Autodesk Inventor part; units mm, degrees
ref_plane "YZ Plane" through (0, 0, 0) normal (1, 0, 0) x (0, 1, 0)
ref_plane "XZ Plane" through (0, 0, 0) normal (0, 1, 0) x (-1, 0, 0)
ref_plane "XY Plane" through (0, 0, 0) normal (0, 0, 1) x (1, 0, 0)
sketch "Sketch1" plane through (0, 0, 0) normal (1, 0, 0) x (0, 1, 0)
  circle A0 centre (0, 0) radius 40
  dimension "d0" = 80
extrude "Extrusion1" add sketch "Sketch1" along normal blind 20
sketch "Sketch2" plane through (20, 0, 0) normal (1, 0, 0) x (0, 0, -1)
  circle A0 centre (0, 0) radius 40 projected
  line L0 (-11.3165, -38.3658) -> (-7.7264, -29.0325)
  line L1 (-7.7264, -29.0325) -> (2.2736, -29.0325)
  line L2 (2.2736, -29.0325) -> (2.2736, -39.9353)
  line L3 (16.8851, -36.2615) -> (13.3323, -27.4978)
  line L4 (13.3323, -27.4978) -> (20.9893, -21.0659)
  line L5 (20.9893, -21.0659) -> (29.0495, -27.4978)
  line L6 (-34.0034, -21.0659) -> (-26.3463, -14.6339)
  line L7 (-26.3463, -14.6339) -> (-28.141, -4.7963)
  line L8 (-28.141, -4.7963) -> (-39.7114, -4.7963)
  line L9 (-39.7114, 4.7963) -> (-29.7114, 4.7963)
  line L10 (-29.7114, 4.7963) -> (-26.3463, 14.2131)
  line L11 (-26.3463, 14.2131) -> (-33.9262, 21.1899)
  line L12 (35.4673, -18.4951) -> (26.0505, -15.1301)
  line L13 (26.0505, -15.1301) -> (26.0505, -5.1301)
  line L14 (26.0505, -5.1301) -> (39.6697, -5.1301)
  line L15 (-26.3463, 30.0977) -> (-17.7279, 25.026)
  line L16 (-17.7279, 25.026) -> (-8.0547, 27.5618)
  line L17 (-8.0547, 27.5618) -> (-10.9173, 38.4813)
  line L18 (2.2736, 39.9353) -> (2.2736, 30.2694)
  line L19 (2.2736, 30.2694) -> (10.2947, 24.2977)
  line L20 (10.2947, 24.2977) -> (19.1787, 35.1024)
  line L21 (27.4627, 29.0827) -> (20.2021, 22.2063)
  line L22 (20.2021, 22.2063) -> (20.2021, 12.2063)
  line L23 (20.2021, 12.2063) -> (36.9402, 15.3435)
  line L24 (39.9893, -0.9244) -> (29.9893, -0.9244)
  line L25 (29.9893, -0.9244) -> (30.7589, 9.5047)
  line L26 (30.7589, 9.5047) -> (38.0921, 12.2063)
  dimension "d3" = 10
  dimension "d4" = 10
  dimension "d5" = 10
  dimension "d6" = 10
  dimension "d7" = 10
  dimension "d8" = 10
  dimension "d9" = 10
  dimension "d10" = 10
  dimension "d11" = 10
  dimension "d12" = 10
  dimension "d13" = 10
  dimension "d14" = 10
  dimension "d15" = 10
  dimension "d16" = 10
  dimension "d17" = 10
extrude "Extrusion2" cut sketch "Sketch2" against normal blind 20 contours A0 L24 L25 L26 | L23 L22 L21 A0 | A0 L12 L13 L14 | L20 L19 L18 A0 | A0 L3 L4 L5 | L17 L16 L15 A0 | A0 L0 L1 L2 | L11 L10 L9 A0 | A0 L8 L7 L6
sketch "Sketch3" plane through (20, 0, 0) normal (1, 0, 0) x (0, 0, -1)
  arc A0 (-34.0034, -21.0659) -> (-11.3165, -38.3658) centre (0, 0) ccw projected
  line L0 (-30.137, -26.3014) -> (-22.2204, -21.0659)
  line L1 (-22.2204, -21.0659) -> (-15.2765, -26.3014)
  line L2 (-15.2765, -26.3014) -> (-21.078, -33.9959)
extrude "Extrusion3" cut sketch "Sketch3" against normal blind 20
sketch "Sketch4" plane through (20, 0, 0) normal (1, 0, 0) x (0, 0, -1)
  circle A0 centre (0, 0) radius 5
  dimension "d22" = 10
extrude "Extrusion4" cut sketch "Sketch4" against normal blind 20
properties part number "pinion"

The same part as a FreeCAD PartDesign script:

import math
import FreeCAD as App
import Part
import Sketcher

doc = App.newDocument("Part")
body = doc.addObject("PartDesign::Body", "Body")

# Sketch on YZ plane
sketch1 = doc.addObject("Sketcher::SketchObject", "Sketch")
body.addObject(sketch1)
sketch1.AttachmentSupport = (doc.YZ_Plane, [""])
sketch1.MapMode = "FlatFace"
sketch1.addGeometry(Part.Circle(App.Vector(0, 0, 0), App.Vector(0, 0, 1), 40), False)
sketch1.addConstraint(Sketcher.Constraint("Coincident", 0, 3, -1, 1))
sketch1.addConstraint(Sketcher.Constraint("Diameter", 0, 80.0))
pad1 = doc.addObject("PartDesign::Pad", "Pad")
body.addObject(pad1)
pad1.Profile = sketch1
pad1.Length = 20

# Sketch on YZ plane
sketch2 = doc.addObject("Sketcher::SketchObject", "Sketch001")
body.addObject(sketch2)
sketch2.AttachmentSupport = (doc.YZ_Plane, [""])
sketch2.MapMode = "FlatFace"
sketch2.AttachmentOffset = App.Placement(App.Vector(0, 0, 20), App.Rotation())
sketch2.addGeometry(Part.ArcOfCircle(Part.Circle(App.Vector(0, 0, 0), App.Vector(0, 0, 1), 40), math.radians(-91.324224), math.radians(-72.232371)), False)
sketch2.addGeometry(Part.LineSegment(App.Vector(12.2063, -38.0921, 0), App.Vector(9.5047, -30.7589, 0)), False)
sketch2.addGeometry(Part.LineSegment(App.Vector(9.5047, -30.7589, 0), App.Vector(-0.9244, -29.9893, 0)), False)
sketch2.addGeometry(Part.LineSegment(App.Vector(-0.9244, -29.9893, 0), App.Vector(-0.9244, -39.9893, 0)), False)
sketch2.addGeometry(Part.LineSegment(App.Vector(12.2063, -20.2021, 0), App.Vector(15.3435, -36.9402, 0)), False)
sketch2.addGeometry(Part.ArcOfCircle(Part.Circle(App.Vector(0, 0, 0), App.Vector(0, 0, 1), 40), math.radians(-67.443932), math.radians(-43.358951)), False)
sketch2.addGeometry(Part.LineSegment(App.Vector(29.0827, -27.4627, 0), App.Vector(22.2063, -20.2021, 0)), False)
sketch2.addGeometry(Part.LineSegment(App.Vector(22.2063, -20.2021, 0), App.Vector(12.2063, -20.2021, 0)), False)
sketch2.addGeometry(Part.ArcOfCircle(Part.Circle(App.Vector(0, 0, 0), App.Vector(0, 0, 1), 40), math.radians(-117.540648), math.radians(-97.368616)), False)
sketch2.addGeometry(Part.LineSegment(App.Vector(-5.1301, -39.6697, 0), App.Vector(-5.1301, -26.0505, 0)), False)
sketch2.addGeometry(Part.LineSegment(App.Vector(-5.1301, -26.0505, 0), App.Vector(-15.1301, -26.0505, 0)), False)
sketch2.addGeometry(Part.LineSegment(App.Vector(-15.1301, -26.0505, 0), App.Vector(-18.4951, -35.4673, 0)), False)
sketch2.addGeometry(Part.LineSegment(App.Vector(24.2977, -10.2947, 0), App.Vector(35.1024, -19.1787, 0)), False)
sketch2.addGeometry(Part.ArcOfCircle(Part.Circle(App.Vector(0, 0, 0), App.Vector(0, 0, 1), 40), math.radians(-28.650619), math.radians(-3.258451)), False)
sketch2.addGeometry(Part.LineSegment(App.Vector(39.9353, -2.2736, 0), App.Vector(30.2694, -2.2736, 0)), False)
sketch2.addGeometry(Part.LineSegment(App.Vector(30.2694, -2.2736, 0), App.Vector(24.2977, -10.2947, 0)), False)
sketch2.addGeometry(Part.ArcOfCircle(Part.Circle(App.Vector(0, 0, 0), App.Vector(0, 0, 1), 40), math.radians(-155.031046), math.radians(-133.428156)), False)
sketch2.addGeometry(Part.LineSegment(App.Vector(-27.4978, -29.0495, 0), App.Vector(-21.0659, -20.9893, 0)), False)
sketch2.addGeometry(Part.LineSegment(App.Vector(-21.0659, -20.9893, 0), App.Vector(-27.4978, -13.3323, 0)), False)
sketch2.addGeometry(Part.LineSegment(App.Vector(-27.4978, -13.3323, 0), App.Vector(-36.2615, -16.8851, 0)), False)
sketch2.addGeometry(Part.LineSegment(App.Vector(27.5618, 8.0547, 0), App.Vector(38.4813, 10.9173, 0)), False)
sketch2.addGeometry(Part.ArcOfCircle(Part.Circle(App.Vector(0, 0, 0), App.Vector(0, 0, 1), 40), math.radians(15.838853), math.radians(41.197581)), False)
sketch2.addGeometry(Part.LineSegment(App.Vector(30.0977, 26.3463, 0), App.Vector(25.026, 17.7279, 0)), False)
sketch2.addGeometry(Part.LineSegment(App.Vector(25.026, 17.7279, 0), App.Vector(27.5618, 8.0547, 0)), False)
sketch2.addGeometry(Part.ArcOfCircle(Part.Circle(App.Vector(0, 0, 0), App.Vector(0, 0, 1), 40), math.radians(163.565879), math.radians(183.258451)), False)
sketch2.addGeometry(Part.LineSegment(App.Vector(-39.9353, -2.2736, 0), App.Vector(-29.0325, -2.2736, 0)), False)
sketch2.addGeometry(Part.LineSegment(App.Vector(-29.0325, -2.2736, 0), App.Vector(-29.0325, 7.7264, 0)), False)
sketch2.addGeometry(Part.LineSegment(App.Vector(-29.0325, 7.7264, 0), App.Vector(-38.3658, 11.3165, 0)), False)
sketch2.addGeometry(Part.LineSegment(App.Vector(14.2131, 26.3463, 0), App.Vector(21.1899, 33.9262, 0)), False)
sketch2.addGeometry(Part.ArcOfCircle(Part.Circle(App.Vector(0, 0, 0), App.Vector(0, 0, 1), 40), math.radians(58.011592), math.radians(83.113235)), False)
sketch2.addGeometry(Part.LineSegment(App.Vector(4.7963, 39.7114, 0), App.Vector(4.7963, 29.7114, 0)), False)
sketch2.addGeometry(Part.LineSegment(App.Vector(4.7963, 29.7114, 0), App.Vector(14.2131, 26.3463, 0)), False)
sketch2.addGeometry(Part.ArcOfCircle(Part.Circle(App.Vector(0, 0, 0), App.Vector(0, 0, 1), 40), math.radians(96.886765), math.radians(121.779181)), False)
sketch2.addGeometry(Part.LineSegment(App.Vector(-21.0659, 34.0034, 0), App.Vector(-14.6339, 26.3463, 0)), False)
sketch2.addGeometry(Part.LineSegment(App.Vector(-14.6339, 26.3463, 0), App.Vector(-4.7963, 28.141, 0)), False)
sketch2.addGeometry(Part.LineSegment(App.Vector(-4.7963, 28.141, 0), App.Vector(-4.7963, 39.7114, 0)), False)
sketch2.addConstraint(Sketcher.Constraint("Coincident", 0, 2, 1, 1))
sketch2.addConstraint(Sketcher.Constraint("Coincident", 1, 2, 2, 1))
sketch2.addConstraint(Sketcher.Constraint("Coincident", 2, 2, 3, 1))
sketch2.addConstraint(Sketcher.Constraint("Coincident", 3, 2, 0, 1))
sketch2.addConstraint(Sketcher.Constraint("Coincident", 4, 2, 5, 1))
sketch2.addConstraint(Sketcher.Constraint("Coincident", 5, 2, 6, 1))
sketch2.addConstraint(Sketcher.Constraint("Coincident", 6, 2, 7, 1))
sketch2.addConstraint(Sketcher.Constraint("Coincident", 7, 2, 4, 1))
sketch2.addConstraint(Sketcher.Constraint("Coincident", 8, 2, 9, 1))
sketch2.addConstraint(Sketcher.Constraint("Coincident", 9, 2, 10, 1))
sketch2.addConstraint(Sketcher.Constraint("Coincident", 10, 2, 11, 1))
sketch2.addConstraint(Sketcher.Constraint("Coincident", 11, 2, 8, 1))
sketch2.addConstraint(Sketcher.Constraint("Coincident", 12, 2, 13, 1))
sketch2.addConstraint(Sketcher.Constraint("Coincident", 13, 2, 14, 1))
sketch2.addConstraint(Sketcher.Constraint("Coincident", 14, 2, 15, 1))
sketch2.addConstraint(Sketcher.Constraint("Coincident", 15, 2, 12, 1))
sketch2.addConstraint(Sketcher.Constraint("Coincident", 16, 2, 17, 1))
sketch2.addConstraint(Sketcher.Constraint("Coincident", 17, 2, 18, 1))
sketch2.addConstraint(Sketcher.Constraint("Coincident", 18, 2, 19, 1))
sketch2.addConstraint(Sketcher.Constraint("Coincident", 19, 2, 16, 1))
sketch2.addConstraint(Sketcher.Constraint("Coincident", 20, 2, 21, 1))
sketch2.addConstraint(Sketcher.Constraint("Coincident", 21, 2, 22, 1))
sketch2.addConstraint(Sketcher.Constraint("Coincident", 22, 2, 23, 1))
sketch2.addConstraint(Sketcher.Constraint("Coincident", 23, 2, 20, 1))
sketch2.addConstraint(Sketcher.Constraint("Coincident", 24, 2, 25, 1))
sketch2.addConstraint(Sketcher.Constraint("Coincident", 25, 2, 26, 1))
sketch2.addConstraint(Sketcher.Constraint("Coincident", 26, 2, 27, 1))
sketch2.addConstraint(Sketcher.Constraint("Coincident", 27, 2, 24, 1))
sketch2.addConstraint(Sketcher.Constraint("Coincident", 28, 2, 29, 1))
sketch2.addConstraint(Sketcher.Constraint("Coincident", 29, 2, 30, 1))
sketch2.addConstraint(Sketcher.Constraint("Coincident", 30, 2, 31, 1))
sketch2.addConstraint(Sketcher.Constraint("Coincident", 31, 2, 28, 1))
sketch2.addConstraint(Sketcher.Constraint("Coincident", 32, 2, 33, 1))
sketch2.addConstraint(Sketcher.Constraint("Coincident", 33, 2, 34, 1))
sketch2.addConstraint(Sketcher.Constraint("Coincident", 34, 2, 35, 1))
sketch2.addConstraint(Sketcher.Constraint("Coincident", 35, 2, 32, 1))
sketch2.addConstraint(Sketcher.Constraint("Vertical", 3))
sketch2.addConstraint(Sketcher.Constraint("Horizontal", 7))
sketch2.addConstraint(Sketcher.Constraint("Vertical", 9))
sketch2.addConstraint(Sketcher.Constraint("Horizontal", 10))
sketch2.addConstraint(Sketcher.Constraint("Horizontal", 14))
sketch2.addConstraint(Sketcher.Constraint("Horizontal", 25))
sketch2.addConstraint(Sketcher.Constraint("Vertical", 26))
sketch2.addConstraint(Sketcher.Constraint("Vertical", 30))
sketch2.addConstraint(Sketcher.Constraint("Vertical", 35))
sketch2.addConstraint(Sketcher.Constraint("Coincident", 0, 3, -1, 1))
sketch2.addConstraint(Sketcher.Constraint("Coincident", 5, 3, -1, 1))
sketch2.addConstraint(Sketcher.Constraint("Coincident", 8, 3, -1, 1))
sketch2.addConstraint(Sketcher.Constraint("Coincident", 13, 3, -1, 1))
sketch2.addConstraint(Sketcher.Constraint("Coincident", 16, 3, -1, 1))
sketch2.addConstraint(Sketcher.Constraint("Coincident", 21, 3, -1, 1))
sketch2.addConstraint(Sketcher.Constraint("Coincident", 24, 3, -1, 1))
sketch2.addConstraint(Sketcher.Constraint("Coincident", 29, 3, -1, 1))
sketch2.addConstraint(Sketcher.Constraint("Coincident", 32, 3, -1, 1))
sketch2.addConstraint(Sketcher.Constraint("DistanceX", 7, 2, 7, 1, 10.0))
sketch2.addConstraint(Sketcher.Constraint("DistanceX", 10, 2, 10, 1, 10.0))
sketch2.addConstraint(Sketcher.Constraint("DistanceY", 3, 2, 3, 1, 10.0))
sketch2.addConstraint(Sketcher.Constraint("DistanceY", 26, 1, 26, 2, 10.0))
sketch2.addConstraint(Sketcher.Constraint("DistanceY", 30, 2, 30, 1, 10.0))
sketch2.addConstraint(Sketcher.Constraint("Distance", 6, 10.0))
sketch2.addConstraint(Sketcher.Constraint("Distance", 11, 10.0))
sketch2.addConstraint(Sketcher.Constraint("Distance", 15, 10.0))
sketch2.addConstraint(Sketcher.Constraint("Distance", 18, 10.0))
sketch2.addConstraint(Sketcher.Constraint("Distance", 22, 10.0))
sketch2.addConstraint(Sketcher.Constraint("Distance", 23, 10.0))
sketch2.addConstraint(Sketcher.Constraint("Distance", 27, 10.0))
sketch2.addConstraint(Sketcher.Constraint("Distance", 31, 10.0))
sketch2.addConstraint(Sketcher.Constraint("Distance", 33, 10.0))
sketch2.addConstraint(Sketcher.Constraint("Distance", 34, 10.0))
sketch2.addConstraint(Sketcher.Constraint("Radius", 0, 40.0))
sketch2.addConstraint(Sketcher.Constraint("Radius", 5, 40.0))
sketch2.addConstraint(Sketcher.Constraint("Radius", 8, 40.0))
sketch2.addConstraint(Sketcher.Constraint("Radius", 13, 40.0))
sketch2.addConstraint(Sketcher.Constraint("Radius", 16, 40.0))
sketch2.addConstraint(Sketcher.Constraint("Radius", 21, 40.0))
sketch2.addConstraint(Sketcher.Constraint("Radius", 24, 40.0))
sketch2.addConstraint(Sketcher.Constraint("Radius", 29, 40.0))
sketch2.addConstraint(Sketcher.Constraint("Radius", 32, 40.0))
sketch2.addConstraint(Sketcher.Constraint("DistanceX", 0, 2, 6, 2, 10.0))
sketch2.addConstraint(Sketcher.Constraint("DistanceY", 30, 2, 35, 2, 10.0))
sketch2.addConstraint(Sketcher.Constraint("DistanceY", 2, 2, 17, 2, 9.0))
sketch2.addConstraint(Sketcher.Constraint("DistanceX", 15, 2, 21, 2, 5.8))
sketch2.addConstraint(Sketcher.Constraint("DistanceX", 27, 2, 32, 2, 17.3))
sketch2.addConstraint(Sketcher.Constraint("DistanceX", 14, 2, 14, 1, 9.666))
sketch2.addConstraint(Sketcher.Constraint("DistanceX", 8, 2, -1, 1, 5.13))
sketch2.addConstraint(Sketcher.Constraint("DistanceX", -1, 1, 28, 2, 21.19))
sketch2.addConstraint(Sketcher.Constraint("DistanceY", 0, 2, 6, 2, 17.89))
sketch2.addConstraint(Sketcher.Constraint("DistanceY", 14, 2, 21, 2, 28.62))
sketch2.addConstraint(Sketcher.Constraint("DistanceY", 26, 2, 27, 2, 3.59))
sketch2.addConstraint(Sketcher.Constraint("DistanceY", 21, 2, 28, 2, 7.58))
sketch2.addConstraint(Sketcher.Constraint("DistanceY", 31, 2, 28, 2, 7.58))
sketch2.addConstraint(Sketcher.Constraint("DistanceY", 26, 2, 33, 2, 18.62))
sketch2.addConstraint(Sketcher.Constraint("Distance", 1, 7.815))
sketch2.addConstraint(Sketcher.Constraint("Distance", 12, 13.988))
sketch2.addConstraint(Sketcher.Constraint("Distance", 17, 10.312))
sketch2.addConstraint(Sketcher.Constraint("Distance", 28, 10.302))
sketch2.addConstraint(Sketcher.Constraint("DistanceX", 25, 1, 25, 2, 10.9028))
sketch2.addConstraint(Sketcher.Constraint("DistanceY", 9, 1, 9, 2, 13.6192))
sketch2.addConstraint(Sketcher.Constraint("DistanceY", 0, 2, -1, 1, 38.092))
sketch2.addConstraint(Sketcher.Constraint("DistanceY", 1, 2, -1, 1, 30.759))
sketch2.addConstraint(Sketcher.Constraint("DistanceX", 17, 2, -1, 1, 21.066))
sketch2.addConstraint(Sketcher.Constraint("DistanceY", 19, 2, -1, 1, 16.885))
sketch2.addConstraint(Sketcher.Constraint("DistanceX", -1, 1, 22, 2, 25.026))
sketch2.addConstraint(Sketcher.Constraint("DistanceX", 2, 2, 1, 2, 10.429))
sketch2.addConstraint(Sketcher.Constraint("DistanceX", 3, 2, 4, 2, 16.268))
sketch2.addConstraint(Sketcher.Constraint("DistanceX", 18, 2, 17, 2, 6.432))
sketch2.addConstraint(Sketcher.Constraint("DistanceX", 20, 2, 13, 2, 1.454))
sketch2.addConstraint(Sketcher.Constraint("DistanceX", 23, 2, 21, 2, 2.536))
pocket1 = doc.addObject("PartDesign::Pocket", "Pocket")
body.addObject(pocket1)
pocket1.Profile = sketch2
pocket1.Length = 20

# Sketch on YZ plane
sketch3 = doc.addObject("Sketcher::SketchObject", "Sketch002")
body.addObject(sketch3)
sketch3.AttachmentSupport = (doc.YZ_Plane, [""])
sketch3.MapMode = "FlatFace"
sketch3.AttachmentOffset = App.Placement(App.Vector(0, 0, 20), App.Rotation())
sketch3.addGeometry(Part.LineSegment(App.Vector(-21, 22, 0), App.Vector(-26, 30, 0)), False)
sketch3.addGeometry(Part.ArcOfCircle(Part.Circle(App.Vector(0, 0, 0), App.Vector(0, 0, 1), 40), math.radians(131.11), math.radians(148.2)), False)
sketch3.addGeometry(Part.LineSegment(App.Vector(-34, 21, 0), App.Vector(-26, 15, 0)), False)
sketch3.addGeometry(Part.LineSegment(App.Vector(-26, 15, 0), App.Vector(-21, 22, 0)), False)
sketch3.addConstraint(Sketcher.Constraint("Coincident", 0, 2, 1, 1))
sketch3.addConstraint(Sketcher.Constraint("Coincident", 1, 2, 2, 1))
sketch3.addConstraint(Sketcher.Constraint("Coincident", 2, 2, 3, 1))
sketch3.addConstraint(Sketcher.Constraint("Coincident", 3, 2, 0, 1))
sketch3.addConstraint(Sketcher.Constraint("Coincident", 1, 3, -1, 1))
sketch3.addConstraint(Sketcher.Constraint("Perpendicular", 2, 3))
sketch3.addConstraint(Sketcher.Constraint("Vertical", 0, 2, 2, 2))
sketch3.addConstraint(Sketcher.Constraint("Radius", 1, 40.0))
sketch3.addConstraint(Sketcher.Constraint("DistanceX", 1, 2, 3, 2, 12.93))
sketch3.addConstraint(Sketcher.Constraint("DistanceY", -1, 1, 0, 2, 30.137))
sketch3.addConstraint(Sketcher.Constraint("DistanceX", 1, 2, -1, 1, 33.996))
sketch3.addConstraint(Sketcher.Constraint("DistanceY", 2, 2, 3, 2, 6.944))
pocket2 = doc.addObject("PartDesign::Pocket", "Pocket001")
body.addObject(pocket2)
pocket2.Profile = sketch3
pocket2.Length = 20

# Sketch on YZ plane
sketch4 = doc.addObject("Sketcher::SketchObject", "Sketch003")
body.addObject(sketch4)
sketch4.AttachmentSupport = (doc.YZ_Plane, [""])
sketch4.MapMode = "FlatFace"
sketch4.AttachmentOffset = App.Placement(App.Vector(0, 0, 20), App.Rotation())
sketch4.addGeometry(Part.Circle(App.Vector(0, 0, 0), App.Vector(0, 0, 1), 5), False)
sketch4.addConstraint(Sketcher.Constraint("Coincident", 0, 3, -1, 1))
sketch4.addConstraint(Sketcher.Constraint("Diameter", 0, 10.0))
pocket3 = doc.addObject("PartDesign::Pocket", "Pocket002")
body.addObject(pocket3)
pocket3.Profile = sketch4
pocket3.Length = 20

doc.recompute()
